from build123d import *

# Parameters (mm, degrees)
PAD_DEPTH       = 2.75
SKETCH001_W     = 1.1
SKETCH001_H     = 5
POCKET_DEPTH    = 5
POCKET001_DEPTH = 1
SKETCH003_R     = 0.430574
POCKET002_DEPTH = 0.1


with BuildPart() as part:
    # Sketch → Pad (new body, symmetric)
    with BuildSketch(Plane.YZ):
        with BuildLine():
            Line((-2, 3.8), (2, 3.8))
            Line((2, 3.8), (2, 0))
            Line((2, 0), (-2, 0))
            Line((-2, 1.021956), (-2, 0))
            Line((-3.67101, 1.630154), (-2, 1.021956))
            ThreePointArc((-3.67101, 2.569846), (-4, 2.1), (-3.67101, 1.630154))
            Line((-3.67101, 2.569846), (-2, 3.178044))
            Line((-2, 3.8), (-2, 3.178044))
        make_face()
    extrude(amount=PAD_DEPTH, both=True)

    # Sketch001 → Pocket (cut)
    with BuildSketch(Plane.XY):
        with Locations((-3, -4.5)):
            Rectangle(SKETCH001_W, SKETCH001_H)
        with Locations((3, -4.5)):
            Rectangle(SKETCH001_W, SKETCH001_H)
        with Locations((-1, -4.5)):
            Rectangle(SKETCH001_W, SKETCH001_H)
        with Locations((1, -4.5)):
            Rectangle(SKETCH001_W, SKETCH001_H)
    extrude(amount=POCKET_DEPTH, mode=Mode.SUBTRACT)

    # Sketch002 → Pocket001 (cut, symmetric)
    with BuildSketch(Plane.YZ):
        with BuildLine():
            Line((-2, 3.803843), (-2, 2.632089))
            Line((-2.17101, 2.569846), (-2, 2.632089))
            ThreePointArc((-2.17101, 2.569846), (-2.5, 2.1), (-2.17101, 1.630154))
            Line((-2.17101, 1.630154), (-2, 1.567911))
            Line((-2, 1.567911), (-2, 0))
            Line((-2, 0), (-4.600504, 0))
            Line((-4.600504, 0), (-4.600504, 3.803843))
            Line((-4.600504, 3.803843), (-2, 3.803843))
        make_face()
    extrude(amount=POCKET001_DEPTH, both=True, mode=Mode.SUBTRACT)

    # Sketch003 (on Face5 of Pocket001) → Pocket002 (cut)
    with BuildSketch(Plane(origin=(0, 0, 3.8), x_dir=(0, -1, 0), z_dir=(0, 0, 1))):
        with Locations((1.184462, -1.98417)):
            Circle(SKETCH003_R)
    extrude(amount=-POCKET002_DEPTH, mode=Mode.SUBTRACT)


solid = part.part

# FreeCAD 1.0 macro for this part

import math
import FreeCAD as App
import Part
import Sketcher
from FreeCAD import Vector
Q = App.Units.Quantity

doc = App.newDocument("Part")
body = doc.addObject("PartDesign::Body", "Body")

sketch1 = body.newObject("Sketcher::SketchObject", "Sketch")
sketch1.AttachmentSupport = (doc.getObject("YZ_Plane"), [""])
sketch1.MapMode = "FlatFace"
sketch1.addGeometry([
    Part.LineSegment(Vector(2, 3.8, 0), Vector(-2, 3.8, 0)),
    Part.LineSegment(Vector(-2, 3.8, 0), Vector(-2, 3.18, 0)),
    Part.LineSegment(Vector(-2, 3.18, 0), Vector(-3.67, 2.57, 0)),
    Part.ArcOfCircle(Part.Circle(Vector(-3.5, 2.1, 0), Vector(0, 0, 1), 0.5), math.radians(110), math.radians(250)),
    Part.LineSegment(Vector(-3.67, 1.63, 0), Vector(-2, 1.02, 0)),
    Part.LineSegment(Vector(-2, 1.02, 0), Vector(-2, 0, 0)),
    Part.LineSegment(Vector(-2, 0, 0), Vector(2, 0, 0)),
    Part.LineSegment(Vector(2, 0, 0), Vector(2, 3.8, 0)),
], False)
sketch1.addConstraint([
    Sketcher.Constraint("Coincident", 0, 2, 1, 1),
    Sketcher.Constraint("Coincident", 1, 2, 2, 1),
    Sketcher.Constraint("Tangent", 2, 2, 3, 1),
    Sketcher.Constraint("Tangent", 3, 2, 4, 1),
    Sketcher.Constraint("Coincident", 4, 2, 5, 1),
    Sketcher.Constraint("Coincident", 5, 2, 6, 1),
    Sketcher.Constraint("Coincident", 6, 2, 7, 1),
    Sketcher.Constraint("Coincident", 7, 2, 0, 1),
    Sketcher.Constraint("Horizontal", 0),
    Sketcher.Constraint("Vertical", 1),
    Sketcher.Constraint("Vertical", 5),
    Sketcher.Constraint("Horizontal", 6),
    Sketcher.Constraint("Vertical", 7),
    Sketcher.Constraint("Symmetric", 5, 2, 6, 2, -1, 1),
    Sketcher.Constraint("Vertical", 2, 2, 3, 2),
    Sketcher.Constraint("Vertical", 1, 2, 4, 2),
    Sketcher.Constraint("Radius", 3, 0.5),
    Sketcher.Constraint("DistanceX", 0, 2, 0, 1, 4.0),
    Sketcher.Constraint("Angle", 2, Q("-159.999997 deg")),
    Sketcher.Constraint("DistanceY", 7, 1, 7, 2, 3.8),
    Sketcher.Constraint("DistanceX", 3, 3, -1, 1, 3.5),
    Sketcher.Constraint("DistanceY", -1, 1, 3, 3, 2.1),
])
pad1 = body.newObject("PartDesign::Pad", "Pad")
pad1.Profile = sketch1
pad1.Length = 5.5
pad1.Midplane = True

sketch2 = body.newObject("Sketcher::SketchObject", "Sketch001")
sketch2.AttachmentSupport = (doc.getObject("XY_Plane"), [""])
sketch2.MapMode = "FlatFace"
sketch2.addGeometry([
    Part.LineSegment(Vector(-3.5, -2, 0), Vector(-3.5, -7, 0)),
    Part.LineSegment(Vector(-3.5, -7, 0), Vector(-2.5, -7, 0)),
    Part.LineSegment(Vector(-2.5, -7, 0), Vector(-2.5, -2, 0)),
    Part.LineSegment(Vector(-2.5, -2, 0), Vector(-3.5, -2, 0)),
    Part.LineSegment(Vector(2.5, -2, 0), Vector(2.5, -7, 0)),
    Part.LineSegment(Vector(2.5, -7, 0), Vector(3.5, -7, 0)),
    Part.LineSegment(Vector(3.5, -7, 0), Vector(3.5, -2, 0)),
    Part.LineSegment(Vector(3.5, -2, 0), Vector(2.5, -2, 0)),
    Part.LineSegment(Vector(-1.6, -2, 0), Vector(-1.6, -7, 0)),
    Part.LineSegment(Vector(-1.6, -7, 0), Vector(-0.5, -7, 0)),
    Part.LineSegment(Vector(-0.5, -7, 0), Vector(-0.5, -2, 0)),
    Part.LineSegment(Vector(-0.5, -2, 0), Vector(-1.6, -2, 0)),
    Part.LineSegment(Vector(0.5, -2, 0), Vector(0.5, -7, 0)),
    Part.LineSegment(Vector(0.5, -7, 0), Vector(1.6, -7, 0)),
    Part.LineSegment(Vector(1.6, -7, 0), Vector(1.6, -2, 0)),
    Part.LineSegment(Vector(1.6, -2, 0), Vector(0.5, -2, 0)),
], False)
sketch2.addConstraint([
    Sketcher.Constraint("Coincident", 0, 2, 1, 1),
    Sketcher.Constraint("Coincident", 1, 2, 2, 1),
    Sketcher.Constraint("Coincident", 2, 2, 3, 1),
    Sketcher.Constraint("Coincident", 3, 2, 0, 1),
    Sketcher.Constraint("Coincident", 4, 2, 5, 1),
    Sketcher.Constraint("Coincident", 5, 2, 6, 1),
    Sketcher.Constraint("Coincident", 6, 2, 7, 1),
    Sketcher.Constraint("Coincident", 7, 2, 4, 1),
    Sketcher.Constraint("Coincident", 8, 2, 9, 1),
    Sketcher.Constraint("Coincident", 9, 2, 10, 1),
    Sketcher.Constraint("Coincident", 10, 2, 11, 1),
    Sketcher.Constraint("Coincident", 11, 2, 8, 1),
    Sketcher.Constraint("Coincident", 12, 2, 13, 1),
    Sketcher.Constraint("Coincident", 13, 2, 14, 1),
    Sketcher.Constraint("Coincident", 14, 2, 15, 1),
    Sketcher.Constraint("Coincident", 15, 2, 12, 1),
    Sketcher.Constraint("Vertical", 0),
    Sketcher.Constraint("Horizontal", 1),
    Sketcher.Constraint("Vertical", 2),
    Sketcher.Constraint("Horizontal", 3),
    Sketcher.Constraint("Vertical", 4),
    Sketcher.Constraint("Horizontal", 5),
    Sketcher.Constraint("Vertical", 6),
    Sketcher.Constraint("Horizontal", 7),
    Sketcher.Constraint("Vertical", 8),
    Sketcher.Constraint("Horizontal", 9),
    Sketcher.Constraint("Vertical", 10),
    Sketcher.Constraint("Horizontal", 11),
    Sketcher.Constraint("Vertical", 12),
    Sketcher.Constraint("Horizontal", 13),
    Sketcher.Constraint("Vertical", 14),
    Sketcher.Constraint("Horizontal", 15),
    Sketcher.Constraint("Symmetric", 1, 2, 4, 2, -2),
    Sketcher.Constraint("Symmetric", 3, 2, 6, 2, -2),
    Sketcher.Constraint("Symmetric", 9, 2, 12, 2, -2),
    Sketcher.Constraint("Symmetric", 11, 2, 14, 2, -2),
    Sketcher.Constraint("Horizontal", 5, 2, 8, 2),
    Sketcher.Constraint("Horizontal", 7, 2, 10, 2),
    Sketcher.Constraint("Equal", 7, 9),
    Sketcher.Constraint("DistanceY", 0, 2, 0, 1, 5.0),
    Sketcher.Constraint("DistanceX", 1, 1, 1, 2, 1.1),
    Sketcher.Constraint("DistanceY", 0, 2, -1, 1, 7.0),
    Sketcher.Constraint("DistanceX", 0, 2, 4, 2, 6.0),
    Sketcher.Constraint("DistanceX", 0, 2, 8, 2, 2.0),
])
pocket1 = body.newObject("PartDesign::Pocket", "Pocket")
pocket1.Profile = sketch2
pocket1.Length = 5
pocket1.Reversed = True

sketch3 = body.newObject("Sketcher::SketchObject", "Sketch002")
sketch3.AttachmentSupport = (doc.getObject("YZ_Plane"), [""])
sketch3.MapMode = "FlatFace"
sketch3.addGeometry([
    Part.LineSegment(Vector(-2, 2.63, 0), Vector(-2, 3.8, 0)),
    Part.LineSegment(Vector(-2, 3.8, 0), Vector(-4.6, 3.8, 0)),
    Part.LineSegment(Vector(-4.6, 3.8, 0), Vector(-4.6, 0, 0)),
    Part.LineSegment(Vector(-4.6, 0, 0), Vector(-2, 0, 0)),
    Part.LineSegment(Vector(-2, 0, 0), Vector(-2, 1.57, 0)),
    Part.LineSegment(Vector(-2, 1.57, 0), Vector(-2.17, 1.63, 0)),
    Part.ArcOfCircle(Part.Circle(Vector(-2, 2.1, 0), Vector(0, 0, 1), 0.5), math.radians(110), math.radians(250)),
    Part.LineSegment(Vector(-2.17, 2.57, 0), Vector(-2, 2.63, 0)),
], False)
sketch3.addConstraint([
    Sketcher.Constraint("Coincident", 0, 2, 1, 1),
    Sketcher.Constraint("Coincident", 1, 2, 2, 1),
    Sketcher.Constraint("Coincident", 2, 2, 3, 1),
    Sketcher.Constraint("Coincident", 3, 2, 4, 1),
    Sketcher.Constraint("Coincident", 4, 2, 5, 1),
    Sketcher.Constraint("Coincident", 5, 2, 6, 2),
    Sketcher.Constraint("Coincident", 6, 1, 7, 1),
    Sketcher.Constraint("Coincident", 7, 2, 0, 1),
    Sketcher.Constraint("Vertical", 0),
    Sketcher.Constraint("Horizontal", 1),
    Sketcher.Constraint("Vertical", 2),
    Sketcher.Constraint("Horizontal", 3),
    Sketcher.Constraint("Vertical", 4),
    Sketcher.Constraint("PointOnObject", 2, 2, -1),
    Sketcher.Constraint("Vertical", 6, 3, 0, 2),
    Sketcher.Constraint("Vertical", 0, 2, 3, 2),
    Sketcher.Constraint("Vertical", 5, 2, 6, 1),
    Sketcher.Constraint("Equal", 5, 7),
    Sketcher.Constraint("Radius", 6, 0.5),
    Sketcher.Constraint("DistanceX", 6, 3, -1, 1, 2.0),
    Sketcher.Constraint("DistanceY", -1, 1, 6, 3, 2.1),
    Sketcher.Constraint("DistanceY", 4, 1, 4, 2, 1.567911),
    Sketcher.Constraint("DistanceX", 1, 2, 1, 1, 2.600504),
    Sketcher.Constraint("DistanceY", 0, 1, 0, 2, 1.171754),
    Sketcher.Constraint("DistanceX", 5, 2, -1, 1, 2.17101),
])
pocket2 = body.newObject("PartDesign::Pocket", "Pocket001")
pocket2.Profile = sketch3
pocket2.Length = 2
pocket2.Midplane = True

sketch4 = body.newObject("Sketcher::SketchObject", "Sketch003")
sketch4.AttachmentSupport = (doc.getObject("XY_Plane"), [""])
sketch4.MapMode = "FlatFace"
sketch4.AttachmentOffset = App.Placement(Vector(0, 0, 3.8), App.Rotation())
sketch4.addGeometry(Part.Circle(Vector(-1.98, -1.18, 0), Vector(0, 0, 1), 0.43), False)
sketch4.addConstraint([
    Sketcher.Constraint("Diameter", 0, 0.861148),
    Sketcher.Constraint("DistanceX", 0, 3, -1, 1, 1.98417),
    Sketcher.Constraint("DistanceY", 0, 3, -1, 1, 1.184462),
])
pocket3 = body.newObject("PartDesign::Pocket", "Pocket002")
pocket3.Profile = sketch4
pocket3.Length = 0.1

doc.recompute()
